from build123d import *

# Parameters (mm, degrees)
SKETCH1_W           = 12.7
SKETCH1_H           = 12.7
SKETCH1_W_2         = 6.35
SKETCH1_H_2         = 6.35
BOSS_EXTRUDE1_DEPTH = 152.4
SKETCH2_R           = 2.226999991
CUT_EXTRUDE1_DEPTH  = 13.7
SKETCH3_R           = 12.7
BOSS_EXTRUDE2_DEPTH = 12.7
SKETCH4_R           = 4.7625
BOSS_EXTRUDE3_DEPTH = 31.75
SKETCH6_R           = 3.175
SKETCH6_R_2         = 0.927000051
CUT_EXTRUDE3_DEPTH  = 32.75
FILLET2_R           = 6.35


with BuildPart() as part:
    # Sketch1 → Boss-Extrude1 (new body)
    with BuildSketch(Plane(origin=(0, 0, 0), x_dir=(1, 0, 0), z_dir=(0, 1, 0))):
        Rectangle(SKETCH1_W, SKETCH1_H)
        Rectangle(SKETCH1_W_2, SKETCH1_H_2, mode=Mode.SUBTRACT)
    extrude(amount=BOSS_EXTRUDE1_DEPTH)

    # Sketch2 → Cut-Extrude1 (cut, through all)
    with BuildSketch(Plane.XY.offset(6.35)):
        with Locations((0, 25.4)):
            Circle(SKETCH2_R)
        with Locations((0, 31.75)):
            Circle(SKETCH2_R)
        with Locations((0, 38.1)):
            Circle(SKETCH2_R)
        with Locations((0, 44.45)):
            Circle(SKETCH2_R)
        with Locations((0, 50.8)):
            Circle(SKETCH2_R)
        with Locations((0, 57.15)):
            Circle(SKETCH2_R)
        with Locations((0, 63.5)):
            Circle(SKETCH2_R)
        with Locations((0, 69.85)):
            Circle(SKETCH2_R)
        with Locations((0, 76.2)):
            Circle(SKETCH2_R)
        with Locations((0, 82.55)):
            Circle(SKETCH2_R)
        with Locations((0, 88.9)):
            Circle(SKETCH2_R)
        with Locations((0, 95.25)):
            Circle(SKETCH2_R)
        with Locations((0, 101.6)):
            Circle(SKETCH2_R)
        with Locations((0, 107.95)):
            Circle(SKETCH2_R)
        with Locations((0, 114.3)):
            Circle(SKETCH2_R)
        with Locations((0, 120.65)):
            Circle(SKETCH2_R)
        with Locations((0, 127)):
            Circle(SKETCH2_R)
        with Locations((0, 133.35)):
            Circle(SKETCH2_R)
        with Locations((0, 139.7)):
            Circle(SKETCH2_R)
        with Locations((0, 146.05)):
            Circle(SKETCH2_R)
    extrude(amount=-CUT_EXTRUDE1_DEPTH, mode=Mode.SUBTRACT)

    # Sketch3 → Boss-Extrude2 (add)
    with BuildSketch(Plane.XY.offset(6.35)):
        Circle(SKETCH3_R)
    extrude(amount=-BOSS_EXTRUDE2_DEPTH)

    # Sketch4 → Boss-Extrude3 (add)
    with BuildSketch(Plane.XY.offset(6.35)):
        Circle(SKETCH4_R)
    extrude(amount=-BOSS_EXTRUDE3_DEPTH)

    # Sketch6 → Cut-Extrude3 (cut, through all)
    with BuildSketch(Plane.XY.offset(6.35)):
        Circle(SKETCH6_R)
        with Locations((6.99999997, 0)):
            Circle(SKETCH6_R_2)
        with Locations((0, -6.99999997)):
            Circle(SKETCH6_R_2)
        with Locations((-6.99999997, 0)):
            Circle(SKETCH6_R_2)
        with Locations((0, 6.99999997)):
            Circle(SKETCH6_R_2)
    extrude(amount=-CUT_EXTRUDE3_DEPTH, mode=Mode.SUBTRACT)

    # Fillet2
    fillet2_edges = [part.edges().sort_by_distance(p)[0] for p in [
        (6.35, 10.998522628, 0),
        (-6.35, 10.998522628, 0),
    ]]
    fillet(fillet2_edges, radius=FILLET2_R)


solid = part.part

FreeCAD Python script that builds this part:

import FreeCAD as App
import Part
import Sketcher
from FreeCAD import Vector
Q = App.Units.Quantity


def edges_at(feature, points):
    """Names of the edges that pass closest to the given points."""
    edges = feature.Shape.Edges
    near = lambda p: min(range(len(edges)), key=lambda i: edges[i].distToShape(Part.Vertex(*p))[0])
    return sorted({f"Edge{near(p) + 1}" for p in points})

doc = App.newDocument("Part")
body = doc.addObject("PartDesign::Body", "Body")

sketch1 = body.newObject("Sketcher::SketchObject", "Sketch")
sketch1.AttachmentSupport = (doc.getObject("XZ_Plane"), [""])
sketch1.MapMode = "FlatFace"
sketch1.addGeometry(Part.LineSegment(Vector(-6, -6, 0), Vector(-6, 6, 0)), False)
sketch1.addGeometry(Part.LineSegment(Vector(-6, 6, 0), Vector(6, 6, 0)), False)
sketch1.addGeometry(Part.LineSegment(Vector(6, 6, 0), Vector(6, -6, 0)), False)
sketch1.addGeometry(Part.LineSegment(Vector(6, -6, 0), Vector(-6, -6, 0)), False)
sketch1.addGeometry(Part.LineSegment(Vector(3, 3, 0), Vector(-3, 3, 0)), False)
sketch1.addGeometry(Part.LineSegment(Vector(-3, 3, 0), Vector(-3, -3, 0)), False)
sketch1.addGeometry(Part.LineSegment(Vector(-3, -3, 0), Vector(3, -3, 0)), False)
sketch1.addGeometry(Part.LineSegment(Vector(3, -3, 0), Vector(3, 3, 0)), False)
sketch1.addConstraint(Sketcher.Constraint("Coincident", 0, 2, 1, 1))
sketch1.addConstraint(Sketcher.Constraint("Coincident", 1, 2, 2, 1))
sketch1.addConstraint(Sketcher.Constraint("Coincident", 2, 2, 3, 1))
sketch1.addConstraint(Sketcher.Constraint("Coincident", 3, 2, 0, 1))
sketch1.addConstraint(Sketcher.Constraint("Coincident", 4, 2, 5, 1))
sketch1.addConstraint(Sketcher.Constraint("Coincident", 5, 2, 6, 1))
sketch1.addConstraint(Sketcher.Constraint("Coincident", 6, 2, 7, 1))
sketch1.addConstraint(Sketcher.Constraint("Coincident", 7, 2, 4, 1))
sketch1.addConstraint(Sketcher.Constraint("Vertical", 0))
sketch1.addConstraint(Sketcher.Constraint("Horizontal", 1))
sketch1.addConstraint(Sketcher.Constraint("Vertical", 2))
sketch1.addConstraint(Sketcher.Constraint("Horizontal", 3))
sketch1.addConstraint(Sketcher.Constraint("Horizontal", 4))
sketch1.addConstraint(Sketcher.Constraint("Vertical", 5))
sketch1.addConstraint(Sketcher.Constraint("Horizontal", 6))
sketch1.addConstraint(Sketcher.Constraint("Vertical", 7))
sketch1.addConstraint(Sketcher.Constraint("Symmetric", 0, 2, 2, 2, -1, 1))
sketch1.addConstraint(Sketcher.Constraint("Symmetric", 4, 2, 6, 2, -1, 1))
sketch1.addConstraint(Sketcher.Constraint("Equal", 3, 0))
sketch1.addConstraint(Sketcher.Constraint("Equal", 6, 5))
sketch1.addConstraint(Sketcher.Constraint("DistanceX", 1, 1, 1, 2, Q("0.5 in")))
sketch1.addConstraint(Sketcher.Constraint("DistanceX", 4, 2, 4, 1, Q("0.25 in")))
pad1 = body.newObject("PartDesign::Pad", "Pad")
pad1.Profile = sketch1
pad1.Length = Q("6 in")
pad1.Reversed = True

sketch2 = body.newObject("Sketcher::SketchObject", "Sketch001")
sketch2.AttachmentSupport = (doc.getObject("XY_Plane"), [""])
sketch2.MapMode = "FlatFace"
sketch2.AttachmentOffset = App.Placement(Vector(0, 0, 0.25 * 25.4), App.Rotation())
sketch2.addGeometry(Part.Circle(Vector(0, 25.4, 0), Vector(0, 0, 1), 2.2), False)
sketch2.addGeometry(Part.Circle(Vector(0, 31.8, 0), Vector(0, 0, 1), 2.2), False)
sketch2.addGeometry(Part.Circle(Vector(0, 38.1, 0), Vector(0, 0, 1), 2.2), False)
sketch2.addGeometry(Part.Circle(Vector(0, 44.5, 0), Vector(0, 0, 1), 2.2), False)
sketch2.addGeometry(Part.Circle(Vector(0, 50.8, 0), Vector(0, 0, 1), 2.2), False)
sketch2.addGeometry(Part.Circle(Vector(0, 57.1, 0), Vector(0, 0, 1), 2.2), False)
sketch2.addGeometry(Part.Circle(Vector(0, 63.5, 0), Vector(0, 0, 1), 2.2), False)
sketch2.addGeometry(Part.Circle(Vector(0, 69.8, 0), Vector(0, 0, 1), 2.2), False)
sketch2.addGeometry(Part.Circle(Vector(0, 76.2, 0), Vector(0, 0, 1), 2.2), False)
sketch2.addGeometry(Part.Circle(Vector(0, 82.5, 0), Vector(0, 0, 1), 2.2), False)
sketch2.addGeometry(Part.Circle(Vector(0, 88.9, 0), Vector(0, 0, 1), 2.2), False)
sketch2.addGeometry(Part.Circle(Vector(0, 95.2, 0), Vector(0, 0, 1), 2.2), False)
sketch2.addGeometry(Part.Circle(Vector(0, 101.6, 0), Vector(0, 0, 1), 2.2), False)
sketch2.addGeometry(Part.Circle(Vector(0, 108, 0), Vector(0, 0, 1), 2.2), False)
sketch2.addGeometry(Part.Circle(Vector(0, 114.3, 0), Vector(0, 0, 1), 2.2), False)
sketch2.addGeometry(Part.Circle(Vector(0, 120.7, 0), Vector(0, 0, 1), 2.2), False)
sketch2.addGeometry(Part.Circle(Vector(0, 127, 0), Vector(0, 0, 1), 2.2), False)
sketch2.addGeometry(Part.Circle(Vector(0, 133.3, 0), Vector(0, 0, 1), 2.2), False)
sketch2.addGeometry(Part.Circle(Vector(0, 139.7, 0), Vector(0, 0, 1), 2.2), False)
sketch2.addGeometry(Part.Circle(Vector(0, 146.1, 0), Vector(0, 0, 1), 2.2), False)
sketch2.addConstraint(Sketcher.Constraint("Equal", 0, 1))
sketch2.addConstraint(Sketcher.Constraint("Equal", 1, 2))
sketch2.addConstraint(Sketcher.Constraint("Equal", 2, 3))
sketch2.addConstraint(Sketcher.Constraint("Equal", 3, 4))
sketch2.addConstraint(Sketcher.Constraint("Equal", 4, 5))
sketch2.addConstraint(Sketcher.Constraint("Equal", 5, 6))
sketch2.addConstraint(Sketcher.Constraint("Equal", 6, 7))
sketch2.addConstraint(Sketcher.Constraint("Equal", 7, 8))
sketch2.addConstraint(Sketcher.Constraint("Equal", 8, 9))
sketch2.addConstraint(Sketcher.Constraint("Equal", 9, 10))
sketch2.addConstraint(Sketcher.Constraint("Equal", 10, 11))
sketch2.addConstraint(Sketcher.Constraint("Equal", 11, 12))
sketch2.addConstraint(Sketcher.Constraint("Equal", 12, 13))
sketch2.addConstraint(Sketcher.Constraint("Equal", 13, 14))
sketch2.addConstraint(Sketcher.Constraint("Equal", 14, 15))
sketch2.addConstraint(Sketcher.Constraint("Equal", 15, 16))
sketch2.addConstraint(Sketcher.Constraint("Equal", 16, 17))
sketch2.addConstraint(Sketcher.Constraint("Equal", 17, 18))
sketch2.addConstraint(Sketcher.Constraint("Equal", 18, 19))
sketch2.addConstraint(Sketcher.Constraint("PointOnObject", 0, 3, -2))
sketch2.addConstraint(Sketcher.Constraint("PointOnObject", 1, 3, -2))
sketch2.addConstraint(Sketcher.Constraint("PointOnObject", 2, 3, -2))
sketch2.addConstraint(Sketcher.Constraint("PointOnObject", 3, 3, -2))
sketch2.addConstraint(Sketcher.Constraint("PointOnObject", 4, 3, -2))
sketch2.addConstraint(Sketcher.Constraint("PointOnObject", 5, 3, -2))
sketch2.addConstraint(Sketcher.Constraint("PointOnObject", 6, 3, -2))
sketch2.addConstraint(Sketcher.Constraint("PointOnObject", 7, 3, -2))
sketch2.addConstraint(Sketcher.Constraint("PointOnObject", 8, 3, -2))
sketch2.addConstraint(Sketcher.Constraint("PointOnObject", 9, 3, -2))
sketch2.addConstraint(Sketcher.Constraint("PointOnObject", 10, 3, -2))
sketch2.addConstraint(Sketcher.Constraint("PointOnObject", 11, 3, -2))
sketch2.addConstraint(Sketcher.Constraint("PointOnObject", 12, 3, -2))
sketch2.addConstraint(Sketcher.Constraint("PointOnObject", 13, 3, -2))
sketch2.addConstraint(Sketcher.Constraint("PointOnObject", 14, 3, -2))
sketch2.addConstraint(Sketcher.Constraint("PointOnObject", 15, 3, -2))
sketch2.addConstraint(Sketcher.Constraint("PointOnObject", 16, 3, -2))
sketch2.addConstraint(Sketcher.Constraint("PointOnObject", 17, 3, -2))
sketch2.addConstraint(Sketcher.Constraint("PointOnObject", 18, 3, -2))
sketch2.addConstraint(Sketcher.Constraint("PointOnObject", 19, 3, -2))
sketch2.addConstraint(Sketcher.Constraint("DistanceY", -1, 1, 0, 3, Q("1 in")))
sketch2.addConstraint(Sketcher.Constraint("DistanceY", -1, 1, 4, 3, Q("2 in")))
sketch2.addConstraint(Sketcher.Constraint("DistanceY", -1, 1, 8, 3, Q("3 in")))
sketch2.addConstraint(Sketcher.Constraint("DistanceY", -1, 1, 12, 3, Q("4 in")))
sketch2.addConstraint(Sketcher.Constraint("DistanceY", -1, 1, 16, 3, Q("5 in")))
sketch2.addConstraint(Sketcher.Constraint("DistanceY", 1, 3, 5, 3, Q("1 in")))
sketch2.addConstraint(Sketcher.Constraint("DistanceY", 2, 3, 6, 3, Q("1 in")))
sketch2.addConstraint(Sketcher.Constraint("DistanceY", 3, 3, 7, 3, Q("1 in")))
sketch2.addConstraint(Sketcher.Constraint("DistanceY", 5, 3, 9, 3, Q("1 in")))
sketch2.addConstraint(Sketcher.Constraint("DistanceY", 6, 3, 10, 3, Q("1 in")))
sketch2.addConstraint(Sketcher.Constraint("DistanceY", 7, 3, 11, 3, Q("1 in")))
sketch2.addConstraint(Sketcher.Constraint("DistanceY", 9, 3, 13, 3, Q("1 in")))
sketch2.addConstraint(Sketcher.Constraint("DistanceY", 10, 3, 14, 3, Q("1 in")))
sketch2.addConstraint(Sketcher.Constraint("DistanceY", 11, 3, 15, 3, Q("1 in")))
sketch2.addConstraint(Sketcher.Constraint("DistanceY", 13, 3, 17, 3, Q("1 in")))
sketch2.addConstraint(Sketcher.Constraint("DistanceY", 14, 3, 18, 3, Q("1 in")))
sketch2.addConstraint(Sketcher.Constraint("DistanceY", 15, 3, 19, 3, Q("1 in")))
sketch2.addConstraint(Sketcher.Constraint("DistanceY", -1, 1, 2, 3, Q("1.5 in")))
sketch2.addConstraint(Sketcher.Constraint("DistanceY", 1, 3, 3, 3, Q("0.5 in")))
sketch2.addConstraint(Sketcher.Constraint("Diameter", 0, 4.454))
sketch2.addConstraint(Sketcher.Constraint("DistanceY", -1, 1, 1, 3, Q("1.25 in")))
pocket1 = body.newObject("PartDesign::Pocket", "Pocket")
pocket1.Profile = sketch2
pocket1.Type = "ThroughAll"

sketch3 = body.newObject("Sketcher::SketchObject", "Sketch002")
sketch3.AttachmentSupport = (doc.getObject("XY_Plane"), [""])
sketch3.MapMode = "FlatFace"
sketch3.AttachmentOffset = App.Placement(Vector(0, 0, 0.25 * 25.4), App.Rotation())
sketch3.addGeometry(Part.Circle(Vector(0, 0, 0), Vector(0, 0, 1), 13), False)
sketch3.addConstraint(Sketcher.Constraint("Coincident", 0, 3, -1, 1))
sketch3.addConstraint(Sketcher.Constraint("Diameter", 0, Q("1 in")))
pad2 = body.newObject("PartDesign::Pad", "Pad001")
pad2.Profile = sketch3
pad2.Length = Q("0.5 in")
pad2.Reversed = True

sketch4 = body.newObject("Sketcher::SketchObject", "Sketch003")
sketch4.AttachmentSupport = (doc.getObject("XY_Plane"), [""])
sketch4.MapMode = "FlatFace"
sketch4.AttachmentOffset = App.Placement(Vector(0, 0, 0.25 * 25.4), App.Rotation())
sketch4.addGeometry(Part.Circle(Vector(0, 0, 0), Vector(0, 0, 1), 4.8), False)
sketch4.addConstraint(Sketcher.Constraint("Coincident", 0, 3, -1, 1))
sketch4.addConstraint(Sketcher.Constraint("Diameter", 0, Q("0.375 in")))
pad3 = body.newObject("PartDesign::Pad", "Pad002")
pad3.Profile = sketch4
pad3.Length = Q("1.25 in")
pad3.Reversed = True

sketch5 = body.newObject("Sketcher::SketchObject", "Sketch004")
sketch5.AttachmentSupport = (doc.getObject("XY_Plane"), [""])
sketch5.MapMode = "FlatFace"
sketch5.AttachmentOffset = App.Placement(Vector(0, 0, 0.25 * 25.4), App.Rotation())
sketch5.addGeometry(Part.Circle(Vector(0, 0, 0), Vector(0, 0, 1), 3.2), False)
sketch5.addGeometry(Part.Circle(Vector(7, 0, 0), Vector(0, 0, 1), 0.9), False)
sketch5.addGeometry(Part.Circle(Vector(0, -7, 0), Vector(0, 0, 1), 0.9), False)
sketch5.addGeometry(Part.Circle(Vector(-7, 0, 0), Vector(0, 0, 1), 0.9), False)
sketch5.addGeometry(Part.Circle(Vector(0, 7, 0), Vector(0, 0, 1), 0.9), False)
sketch5.addConstraint(Sketcher.Constraint("Coincident", 0, 3, -1, 1))
sketch5.addConstraint(Sketcher.Constraint("Equal", 1, 2))
sketch5.addConstraint(Sketcher.Constraint("Equal", 2, 3))
sketch5.addConstraint(Sketcher.Constraint("Equal", 3, 4))
sketch5.addConstraint(Sketcher.Constraint("Symmetric", 1, 3, 3, 3, -1, 1))
sketch5.addConstraint(Sketcher.Constraint("Symmetric", 2, 3, 4, 3, -1, 1))
sketch5.addConstraint(Sketcher.Constraint("PointOnObject", 1, 3, -1))
sketch5.addConstraint(Sketcher.Constraint("PointOnObject", 2, 3, -2))
sketch5.addConstraint(Sketcher.Constraint("Diameter", 0, Q("0.25 in")))
sketch5.addConstraint(Sketcher.Constraint("Diameter", 1, 1.854))
sketch5.addConstraint(Sketcher.Constraint("DistanceX", -1, 1, 1, 3, 7.0))
sketch5.addConstraint(Sketcher.Constraint("DistanceY", 2, 3, -1, 1, 7.0))
pocket2 = body.newObject("PartDesign::Pocket", "Pocket001")
pocket2.Profile = sketch5
pocket2.Type = "ThroughAll"
doc.recompute()

fillet = body.newObject("PartDesign::Fillet", "Fillet")
fillet.Base = (pocket2, edges_at(pocket2, [(6.35, 10.999, 0), (-6.35, 10.999, 0)]))
fillet.Radius = Q("0.25 in")

doc.recompute()
